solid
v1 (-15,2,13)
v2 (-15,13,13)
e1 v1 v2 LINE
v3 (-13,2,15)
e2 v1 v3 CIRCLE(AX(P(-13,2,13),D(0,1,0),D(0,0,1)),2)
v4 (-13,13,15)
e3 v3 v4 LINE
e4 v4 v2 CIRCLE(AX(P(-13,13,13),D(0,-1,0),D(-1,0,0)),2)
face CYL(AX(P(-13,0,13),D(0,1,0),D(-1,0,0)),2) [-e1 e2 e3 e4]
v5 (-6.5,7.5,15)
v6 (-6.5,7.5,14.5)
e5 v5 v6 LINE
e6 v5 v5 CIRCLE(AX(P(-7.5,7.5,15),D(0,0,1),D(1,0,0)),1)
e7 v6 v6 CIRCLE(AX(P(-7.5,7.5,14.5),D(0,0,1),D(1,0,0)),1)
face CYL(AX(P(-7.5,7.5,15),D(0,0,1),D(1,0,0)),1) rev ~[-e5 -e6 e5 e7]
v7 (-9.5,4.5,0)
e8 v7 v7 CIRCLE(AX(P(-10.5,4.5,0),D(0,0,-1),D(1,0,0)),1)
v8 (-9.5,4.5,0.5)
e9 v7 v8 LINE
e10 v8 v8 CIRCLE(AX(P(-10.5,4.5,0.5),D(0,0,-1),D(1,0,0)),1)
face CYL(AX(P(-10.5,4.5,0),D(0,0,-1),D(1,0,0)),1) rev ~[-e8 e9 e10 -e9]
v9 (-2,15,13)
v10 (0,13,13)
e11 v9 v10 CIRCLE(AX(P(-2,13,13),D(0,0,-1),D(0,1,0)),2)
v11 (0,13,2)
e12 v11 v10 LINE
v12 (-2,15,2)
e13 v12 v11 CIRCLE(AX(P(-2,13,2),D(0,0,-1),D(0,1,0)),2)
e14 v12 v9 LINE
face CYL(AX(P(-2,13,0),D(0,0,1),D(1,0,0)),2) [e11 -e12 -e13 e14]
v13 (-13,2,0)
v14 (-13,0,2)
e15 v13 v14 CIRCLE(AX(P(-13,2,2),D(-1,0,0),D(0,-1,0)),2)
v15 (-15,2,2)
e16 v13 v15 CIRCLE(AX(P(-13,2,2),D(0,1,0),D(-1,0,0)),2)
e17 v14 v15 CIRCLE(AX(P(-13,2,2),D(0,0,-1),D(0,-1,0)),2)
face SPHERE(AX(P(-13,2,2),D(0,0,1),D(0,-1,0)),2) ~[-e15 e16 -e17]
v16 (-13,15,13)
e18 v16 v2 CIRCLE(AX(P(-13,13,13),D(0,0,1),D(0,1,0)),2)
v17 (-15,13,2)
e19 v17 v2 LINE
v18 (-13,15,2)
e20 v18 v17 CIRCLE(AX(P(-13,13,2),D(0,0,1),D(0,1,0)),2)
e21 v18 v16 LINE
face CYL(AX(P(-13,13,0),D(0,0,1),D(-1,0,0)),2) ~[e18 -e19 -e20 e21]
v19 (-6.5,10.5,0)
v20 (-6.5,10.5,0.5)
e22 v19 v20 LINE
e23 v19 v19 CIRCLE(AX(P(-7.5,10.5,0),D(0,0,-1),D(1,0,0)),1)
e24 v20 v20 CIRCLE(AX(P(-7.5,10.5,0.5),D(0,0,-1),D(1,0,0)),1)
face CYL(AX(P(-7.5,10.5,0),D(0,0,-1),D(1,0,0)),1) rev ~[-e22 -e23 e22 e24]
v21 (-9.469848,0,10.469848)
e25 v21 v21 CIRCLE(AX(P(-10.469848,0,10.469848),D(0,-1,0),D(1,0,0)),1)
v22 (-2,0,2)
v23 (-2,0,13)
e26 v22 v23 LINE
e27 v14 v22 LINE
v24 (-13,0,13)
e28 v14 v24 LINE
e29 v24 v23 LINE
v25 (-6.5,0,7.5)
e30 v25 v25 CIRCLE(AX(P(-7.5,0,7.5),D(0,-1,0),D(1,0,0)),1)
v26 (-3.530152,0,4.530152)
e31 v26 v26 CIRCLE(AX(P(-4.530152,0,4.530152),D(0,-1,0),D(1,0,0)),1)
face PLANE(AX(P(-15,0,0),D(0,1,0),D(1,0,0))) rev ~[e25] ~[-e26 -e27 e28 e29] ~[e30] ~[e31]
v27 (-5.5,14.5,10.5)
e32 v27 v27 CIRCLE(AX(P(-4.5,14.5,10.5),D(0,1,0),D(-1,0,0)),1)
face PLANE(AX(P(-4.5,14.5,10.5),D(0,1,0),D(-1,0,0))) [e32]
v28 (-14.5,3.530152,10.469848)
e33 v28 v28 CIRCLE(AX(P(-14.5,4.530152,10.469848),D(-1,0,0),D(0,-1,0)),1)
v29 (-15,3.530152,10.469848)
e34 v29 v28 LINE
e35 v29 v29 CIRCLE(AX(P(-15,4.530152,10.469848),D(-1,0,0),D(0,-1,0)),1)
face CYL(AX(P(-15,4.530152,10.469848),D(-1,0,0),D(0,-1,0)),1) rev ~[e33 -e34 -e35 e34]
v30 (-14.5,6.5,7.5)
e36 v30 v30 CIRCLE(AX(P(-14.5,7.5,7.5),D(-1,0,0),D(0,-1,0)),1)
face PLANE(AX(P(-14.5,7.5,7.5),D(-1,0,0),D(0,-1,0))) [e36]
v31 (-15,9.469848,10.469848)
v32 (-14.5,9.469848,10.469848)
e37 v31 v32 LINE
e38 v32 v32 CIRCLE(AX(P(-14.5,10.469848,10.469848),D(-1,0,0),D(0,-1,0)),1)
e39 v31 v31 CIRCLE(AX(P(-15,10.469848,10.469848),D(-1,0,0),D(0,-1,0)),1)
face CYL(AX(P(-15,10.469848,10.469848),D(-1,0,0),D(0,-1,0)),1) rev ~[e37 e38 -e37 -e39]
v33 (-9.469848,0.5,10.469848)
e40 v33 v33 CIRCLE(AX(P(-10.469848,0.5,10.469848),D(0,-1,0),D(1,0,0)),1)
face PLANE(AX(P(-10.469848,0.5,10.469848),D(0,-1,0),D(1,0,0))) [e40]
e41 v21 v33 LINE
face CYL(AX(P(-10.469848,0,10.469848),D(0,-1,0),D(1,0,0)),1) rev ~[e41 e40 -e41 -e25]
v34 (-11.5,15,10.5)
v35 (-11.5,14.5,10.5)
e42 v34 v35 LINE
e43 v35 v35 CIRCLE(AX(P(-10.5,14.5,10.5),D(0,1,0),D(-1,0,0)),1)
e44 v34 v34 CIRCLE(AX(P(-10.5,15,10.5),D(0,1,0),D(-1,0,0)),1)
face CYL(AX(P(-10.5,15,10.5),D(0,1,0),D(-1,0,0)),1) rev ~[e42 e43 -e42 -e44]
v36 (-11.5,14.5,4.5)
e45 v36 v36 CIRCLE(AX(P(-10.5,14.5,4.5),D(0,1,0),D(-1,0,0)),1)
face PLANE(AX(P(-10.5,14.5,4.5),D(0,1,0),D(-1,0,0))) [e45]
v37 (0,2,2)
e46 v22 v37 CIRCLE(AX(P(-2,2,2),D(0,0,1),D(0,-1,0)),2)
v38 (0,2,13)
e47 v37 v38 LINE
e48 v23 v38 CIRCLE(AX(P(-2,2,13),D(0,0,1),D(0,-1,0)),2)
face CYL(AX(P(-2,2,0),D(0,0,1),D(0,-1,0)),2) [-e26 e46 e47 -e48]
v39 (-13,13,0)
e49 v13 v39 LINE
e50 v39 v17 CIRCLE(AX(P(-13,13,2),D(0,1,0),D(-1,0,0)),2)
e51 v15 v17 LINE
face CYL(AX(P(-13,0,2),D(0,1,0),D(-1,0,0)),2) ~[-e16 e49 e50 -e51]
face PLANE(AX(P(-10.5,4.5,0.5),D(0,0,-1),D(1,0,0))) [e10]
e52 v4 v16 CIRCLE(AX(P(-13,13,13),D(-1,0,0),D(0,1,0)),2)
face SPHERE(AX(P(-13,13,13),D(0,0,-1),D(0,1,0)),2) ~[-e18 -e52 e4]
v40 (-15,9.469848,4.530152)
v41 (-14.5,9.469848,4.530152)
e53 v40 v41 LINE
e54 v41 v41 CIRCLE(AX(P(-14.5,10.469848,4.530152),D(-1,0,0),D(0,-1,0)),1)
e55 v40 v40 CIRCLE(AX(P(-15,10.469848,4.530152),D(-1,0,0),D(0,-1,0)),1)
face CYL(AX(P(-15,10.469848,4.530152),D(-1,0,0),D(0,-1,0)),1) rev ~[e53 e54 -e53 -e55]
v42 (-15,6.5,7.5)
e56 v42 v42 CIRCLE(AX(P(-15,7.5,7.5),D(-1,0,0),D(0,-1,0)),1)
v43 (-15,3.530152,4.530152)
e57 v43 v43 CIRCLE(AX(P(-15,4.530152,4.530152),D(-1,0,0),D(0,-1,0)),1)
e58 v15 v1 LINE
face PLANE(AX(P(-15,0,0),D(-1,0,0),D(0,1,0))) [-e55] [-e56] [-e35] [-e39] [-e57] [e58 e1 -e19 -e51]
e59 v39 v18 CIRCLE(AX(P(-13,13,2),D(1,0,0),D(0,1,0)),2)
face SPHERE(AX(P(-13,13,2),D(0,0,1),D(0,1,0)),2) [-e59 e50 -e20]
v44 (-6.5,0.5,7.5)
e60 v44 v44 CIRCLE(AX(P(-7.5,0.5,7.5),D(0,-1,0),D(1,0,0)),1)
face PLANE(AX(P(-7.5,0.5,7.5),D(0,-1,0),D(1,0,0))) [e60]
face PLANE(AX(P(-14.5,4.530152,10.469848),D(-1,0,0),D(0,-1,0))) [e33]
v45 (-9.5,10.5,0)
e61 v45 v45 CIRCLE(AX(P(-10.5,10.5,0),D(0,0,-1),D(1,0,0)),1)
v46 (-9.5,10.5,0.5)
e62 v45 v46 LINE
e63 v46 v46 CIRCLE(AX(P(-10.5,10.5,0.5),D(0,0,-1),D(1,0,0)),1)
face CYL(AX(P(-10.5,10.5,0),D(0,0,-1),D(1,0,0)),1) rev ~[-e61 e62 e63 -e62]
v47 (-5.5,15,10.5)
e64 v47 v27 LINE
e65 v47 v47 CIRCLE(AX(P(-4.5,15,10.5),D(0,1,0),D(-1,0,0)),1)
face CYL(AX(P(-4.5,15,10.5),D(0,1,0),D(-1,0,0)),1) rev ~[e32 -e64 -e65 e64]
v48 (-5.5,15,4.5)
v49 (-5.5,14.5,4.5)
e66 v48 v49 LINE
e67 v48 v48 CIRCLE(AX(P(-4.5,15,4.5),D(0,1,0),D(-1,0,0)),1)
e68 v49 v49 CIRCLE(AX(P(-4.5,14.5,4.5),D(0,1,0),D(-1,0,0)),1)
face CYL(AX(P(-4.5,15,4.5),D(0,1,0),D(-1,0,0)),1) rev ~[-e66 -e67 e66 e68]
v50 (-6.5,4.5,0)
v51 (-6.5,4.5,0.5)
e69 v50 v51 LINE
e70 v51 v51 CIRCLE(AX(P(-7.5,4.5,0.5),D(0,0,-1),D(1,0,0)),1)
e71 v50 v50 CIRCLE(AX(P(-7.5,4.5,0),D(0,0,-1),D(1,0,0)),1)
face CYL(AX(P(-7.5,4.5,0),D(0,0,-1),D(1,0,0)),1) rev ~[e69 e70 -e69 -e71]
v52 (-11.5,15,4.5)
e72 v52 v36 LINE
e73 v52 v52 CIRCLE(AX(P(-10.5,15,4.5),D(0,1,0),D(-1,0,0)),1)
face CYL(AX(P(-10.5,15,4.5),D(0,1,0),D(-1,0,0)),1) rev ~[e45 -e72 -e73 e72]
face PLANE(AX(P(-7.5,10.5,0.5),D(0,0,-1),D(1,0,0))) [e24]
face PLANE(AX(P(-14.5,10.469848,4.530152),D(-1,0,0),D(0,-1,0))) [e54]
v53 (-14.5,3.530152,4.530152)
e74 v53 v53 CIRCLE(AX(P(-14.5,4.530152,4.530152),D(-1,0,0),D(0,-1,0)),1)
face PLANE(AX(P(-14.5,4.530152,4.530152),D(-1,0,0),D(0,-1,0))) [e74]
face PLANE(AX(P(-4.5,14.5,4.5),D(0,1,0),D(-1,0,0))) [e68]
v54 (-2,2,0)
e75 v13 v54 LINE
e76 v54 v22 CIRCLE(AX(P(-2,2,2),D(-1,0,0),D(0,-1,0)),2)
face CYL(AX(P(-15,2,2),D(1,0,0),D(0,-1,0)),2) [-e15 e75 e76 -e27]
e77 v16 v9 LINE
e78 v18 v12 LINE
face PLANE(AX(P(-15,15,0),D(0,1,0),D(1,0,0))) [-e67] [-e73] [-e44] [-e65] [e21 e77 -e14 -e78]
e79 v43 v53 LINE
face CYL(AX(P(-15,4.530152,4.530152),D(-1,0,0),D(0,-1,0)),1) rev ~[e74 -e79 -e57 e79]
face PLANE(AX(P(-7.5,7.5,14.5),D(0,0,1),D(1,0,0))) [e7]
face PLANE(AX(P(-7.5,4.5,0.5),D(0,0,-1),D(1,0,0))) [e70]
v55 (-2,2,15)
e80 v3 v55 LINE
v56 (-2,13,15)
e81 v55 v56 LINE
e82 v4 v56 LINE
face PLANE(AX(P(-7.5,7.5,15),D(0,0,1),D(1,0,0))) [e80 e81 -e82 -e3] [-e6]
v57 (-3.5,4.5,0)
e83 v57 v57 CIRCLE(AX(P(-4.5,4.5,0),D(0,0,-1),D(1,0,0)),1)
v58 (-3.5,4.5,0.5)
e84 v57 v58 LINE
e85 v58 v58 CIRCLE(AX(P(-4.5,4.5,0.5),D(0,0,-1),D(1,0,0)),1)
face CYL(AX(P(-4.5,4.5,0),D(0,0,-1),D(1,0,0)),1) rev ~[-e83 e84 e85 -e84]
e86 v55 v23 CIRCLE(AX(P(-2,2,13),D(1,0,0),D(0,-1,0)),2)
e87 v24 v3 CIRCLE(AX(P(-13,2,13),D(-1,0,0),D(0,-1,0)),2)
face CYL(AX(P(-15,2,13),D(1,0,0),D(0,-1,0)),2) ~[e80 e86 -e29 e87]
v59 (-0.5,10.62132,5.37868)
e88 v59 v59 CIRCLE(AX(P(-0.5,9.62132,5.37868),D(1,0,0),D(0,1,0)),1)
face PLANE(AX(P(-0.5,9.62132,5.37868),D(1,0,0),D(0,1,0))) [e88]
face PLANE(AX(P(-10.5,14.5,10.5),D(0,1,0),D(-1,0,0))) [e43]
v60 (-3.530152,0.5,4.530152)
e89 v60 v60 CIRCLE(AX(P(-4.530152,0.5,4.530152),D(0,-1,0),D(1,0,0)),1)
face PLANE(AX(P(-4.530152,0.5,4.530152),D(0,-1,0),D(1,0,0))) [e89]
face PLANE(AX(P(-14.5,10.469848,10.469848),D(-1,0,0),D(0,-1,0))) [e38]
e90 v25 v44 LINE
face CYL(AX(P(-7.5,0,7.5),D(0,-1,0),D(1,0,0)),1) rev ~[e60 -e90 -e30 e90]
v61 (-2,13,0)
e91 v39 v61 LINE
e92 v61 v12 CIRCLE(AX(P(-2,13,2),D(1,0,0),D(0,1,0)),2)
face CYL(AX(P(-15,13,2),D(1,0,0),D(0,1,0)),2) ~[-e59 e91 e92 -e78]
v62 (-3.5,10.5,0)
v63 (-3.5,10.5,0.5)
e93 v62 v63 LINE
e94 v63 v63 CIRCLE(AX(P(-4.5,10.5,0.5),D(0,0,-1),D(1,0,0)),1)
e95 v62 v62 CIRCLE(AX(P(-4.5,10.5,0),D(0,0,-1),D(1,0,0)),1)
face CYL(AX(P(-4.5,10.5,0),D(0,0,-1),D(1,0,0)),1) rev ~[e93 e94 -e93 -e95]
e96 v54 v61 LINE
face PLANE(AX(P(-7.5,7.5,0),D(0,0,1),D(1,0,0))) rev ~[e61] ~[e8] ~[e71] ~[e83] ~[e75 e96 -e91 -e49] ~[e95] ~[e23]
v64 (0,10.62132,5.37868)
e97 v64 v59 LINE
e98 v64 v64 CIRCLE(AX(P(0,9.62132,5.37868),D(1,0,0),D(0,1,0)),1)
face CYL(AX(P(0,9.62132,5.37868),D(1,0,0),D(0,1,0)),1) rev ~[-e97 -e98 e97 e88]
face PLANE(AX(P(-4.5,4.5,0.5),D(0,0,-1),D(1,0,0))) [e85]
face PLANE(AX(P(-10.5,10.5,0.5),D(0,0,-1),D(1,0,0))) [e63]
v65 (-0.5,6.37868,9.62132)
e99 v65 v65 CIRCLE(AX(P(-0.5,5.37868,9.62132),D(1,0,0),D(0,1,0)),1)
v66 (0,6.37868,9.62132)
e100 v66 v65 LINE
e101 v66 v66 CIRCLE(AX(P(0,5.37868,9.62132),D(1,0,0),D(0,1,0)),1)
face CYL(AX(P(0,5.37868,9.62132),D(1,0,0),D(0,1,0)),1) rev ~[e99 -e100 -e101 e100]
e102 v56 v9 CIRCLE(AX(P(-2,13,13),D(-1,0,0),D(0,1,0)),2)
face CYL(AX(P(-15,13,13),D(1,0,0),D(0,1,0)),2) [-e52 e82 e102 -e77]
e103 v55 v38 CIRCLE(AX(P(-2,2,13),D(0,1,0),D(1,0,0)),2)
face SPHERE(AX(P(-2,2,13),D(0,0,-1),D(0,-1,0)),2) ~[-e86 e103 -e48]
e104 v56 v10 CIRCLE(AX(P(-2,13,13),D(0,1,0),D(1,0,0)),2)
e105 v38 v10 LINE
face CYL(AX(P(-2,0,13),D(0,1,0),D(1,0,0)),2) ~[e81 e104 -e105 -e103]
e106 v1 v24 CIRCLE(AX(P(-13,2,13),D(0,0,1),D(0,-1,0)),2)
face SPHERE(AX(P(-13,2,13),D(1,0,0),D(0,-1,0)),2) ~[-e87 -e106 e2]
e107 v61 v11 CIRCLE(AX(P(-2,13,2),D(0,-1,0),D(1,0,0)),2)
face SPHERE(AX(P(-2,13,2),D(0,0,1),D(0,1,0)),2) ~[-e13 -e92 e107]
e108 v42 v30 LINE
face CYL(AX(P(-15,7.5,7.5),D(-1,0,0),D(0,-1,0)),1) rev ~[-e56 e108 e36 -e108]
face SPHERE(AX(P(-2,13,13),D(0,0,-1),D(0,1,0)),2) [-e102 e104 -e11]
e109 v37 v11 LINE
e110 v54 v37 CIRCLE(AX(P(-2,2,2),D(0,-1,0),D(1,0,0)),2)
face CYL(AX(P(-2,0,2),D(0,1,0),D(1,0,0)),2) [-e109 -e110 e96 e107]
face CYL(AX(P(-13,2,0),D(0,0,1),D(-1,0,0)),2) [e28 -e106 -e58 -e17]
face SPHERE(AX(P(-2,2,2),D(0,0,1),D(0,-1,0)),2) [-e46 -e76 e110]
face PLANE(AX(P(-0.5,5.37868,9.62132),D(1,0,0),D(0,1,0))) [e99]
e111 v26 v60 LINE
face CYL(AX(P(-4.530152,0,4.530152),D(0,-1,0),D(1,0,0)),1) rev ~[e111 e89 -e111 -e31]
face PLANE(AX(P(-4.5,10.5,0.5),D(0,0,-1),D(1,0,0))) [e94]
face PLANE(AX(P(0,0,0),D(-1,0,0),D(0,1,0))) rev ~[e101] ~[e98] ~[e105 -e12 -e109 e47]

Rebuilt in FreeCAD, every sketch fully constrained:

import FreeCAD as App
import Part
import Sketcher

V = App.Vector


def add_polygon(sketch, points):
    """Adds a closed chain of lines whose ends are joined by coincident constraints."""
    first, n = sketch.GeometryCount, len(points)
    for a, b in zip(points, points[1:] + points[:1]):
        sketch.addGeometry(Part.LineSegment(App.Vector(*a, 0), App.Vector(*b, 0)), False)
    for i in range(n):
        sketch.addConstraint(Sketcher.Constraint("Coincident", first + i, 2, first + (i + 1) % n, 1))

doc = App.newDocument("Part")
body = doc.addObject("PartDesign::Body", "Body")

# Sketch on XY plane
sketch1 = body.newObject("Sketcher::SketchObject", "Sketch")
sketch1.AttachmentSupport = (doc.getObject("XY_Plane"), [""])
sketch1.MapMode = "FlatFace"
add_polygon(sketch1, [(-15, 15), (-15, 0), (0, 0), (0, 15)])  # lines 0-3
sketch1.addConstraint([
    Sketcher.Constraint("Vertical", 0),
    Sketcher.Constraint("Horizontal", 1),
    Sketcher.Constraint("Vertical", 2),
    Sketcher.Constraint("Horizontal", 3),
    Sketcher.Constraint("Coincident", 1, 2, -1, 1),
    Sketcher.Constraint("Equal", 3, 0),
    Sketcher.Constraint("DistanceX", 1, 1, 1, 2, 15.0),
])
pad1 = body.newObject("PartDesign::Pad", "Pad")
pad1.Profile = sketch1
pad1.Length = 15
doc.recompute()

fillet = body.newObject("PartDesign::Fillet", "Fillet")
fillet.Base = (pad1, ["Edge1"])
fillet.UseAllEdges = True
fillet.Radius = 2

# Sketch on XY plane
sketch2 = body.newObject("Sketcher::SketchObject", "Sketch001")
sketch2.AttachmentSupport = (doc.getObject("XY_Plane"), [""])
sketch2.MapMode = "FlatFace"
sketch2.AttachmentOffset = App.Placement(V(0, 0, 15), App.Rotation())
sketch2.addGeometry(Part.Circle(V(-7.5, 7.5, 0), V(0, 0, 1), 1), False)
sketch2.addConstraint([
    Sketcher.Constraint("Diameter", 0, 2.0),
    Sketcher.Constraint("DistanceX", 0, 3, -1, 1, 7.5),
    Sketcher.Constraint("DistanceY", -1, 1, 0, 3, 7.5),
])
pocket1 = body.newObject("PartDesign::Pocket", "Pocket")
pocket1.Profile = sketch2
pocket1.Length = 0.5

# Sketch on XY plane
sketch3 = body.newObject("Sketcher::SketchObject", "Sketch002")
sketch3.AttachmentSupport = (doc.getObject("XY_Plane"), [""])
sketch3.MapMode = "FlatFace"
sketch3.addGeometry([
    Part.Circle(V(-4.5, 10.5, 0), V(0, 0, 1), 1),  # 0
    Part.Circle(V(-7.5, 10.5, 0), V(0, 0, 1), 1),  # 1
    Part.Circle(V(-10.5, 10.5, 0), V(0, 0, 1), 1),  # 2
    Part.Circle(V(-10.5, 4.5, 0), V(0, 0, 1), 1),  # 3
    Part.Circle(V(-7.5, 4.5, 0), V(0, 0, 1), 1),  # 4
    Part.Circle(V(-4.5, 4.5, 0), V(0, 0, 1), 1),  # 5
], False)
sketch3.addConstraint([
    Sketcher.Constraint("Equal", 0, 1),
    Sketcher.Constraint("Equal", 1, 2),
    Sketcher.Constraint("Equal", 2, 3),
    Sketcher.Constraint("Equal", 3, 4),
    Sketcher.Constraint("Equal", 4, 5),
    Sketcher.Constraint("Horizontal", 0, 3, 1, 3),
    Sketcher.Constraint("Horizontal", 1, 3, 2, 3),
    Sketcher.Constraint("Horizontal", 3, 3, 4, 3),
    Sketcher.Constraint("Horizontal", 4, 3, 5, 3),
    Sketcher.Constraint("Vertical", 2, 3, 3, 3),
    Sketcher.Constraint("Vertical", 1, 3, 4, 3),
    Sketcher.Constraint("Vertical", 0, 3, 5, 3),
    Sketcher.Constraint("Diameter", 0, 2.0),
    Sketcher.Constraint("DistanceX", 1, 3, 0, 3, 3.0),
    Sketcher.Constraint("DistanceX", 2, 3, 1, 3, 3.0),
    Sketcher.Constraint("DistanceY", 3, 3, 2, 3, 6.0),
    Sketcher.Constraint("DistanceX", 0, 3, -1, 1, 4.5),
    Sketcher.Constraint("DistanceY", -1, 1, 0, 3, 10.5),
])
pocket2 = body.newObject("PartDesign::Pocket", "Pocket001")
pocket2.Profile = sketch3
pocket2.Length = 0.5
pocket2.Reversed = True

# Sketch on XZ plane
sketch4 = body.newObject("Sketcher::SketchObject", "Sketch003")
sketch4.AttachmentSupport = (doc.getObject("XZ_Plane"), [""])
sketch4.MapMode = "FlatFace"
sketch4.AttachmentOffset = App.Placement(V(0, 0, -15), App.Rotation())
sketch4.addGeometry([
    Part.Circle(V(-10.5, 10.5, 0), V(0, 0, 1), 1),
    Part.Circle(V(-4.5, 10.5, 0), V(0, 0, 1), 1),
    Part.Circle(V(-4.5, 4.5, 0), V(0, 0, 1), 1),
    Part.Circle(V(-10.5, 4.5, 0), V(0, 0, 1), 1),
], False)
sketch4.addConstraint([
    Sketcher.Constraint("Equal", 0, 1),
    Sketcher.Constraint("Equal", 1, 2),
    Sketcher.Constraint("Equal", 2, 3),
    Sketcher.Constraint("Horizontal", 0, 3, 1, 3),
    Sketcher.Constraint("Horizontal", 2, 3, 3, 3),
    Sketcher.Constraint("Vertical", 1, 3, 2, 3),
    Sketcher.Constraint("Vertical", 0, 3, 3, 3),
    Sketcher.Constraint("Diameter", 0, 2.0),
    Sketcher.Constraint("DistanceX", 0, 3, 1, 3, 6.0),
    Sketcher.Constraint("DistanceY", 2, 3, 1, 3, 6.0),
    Sketcher.Constraint("DistanceX", 0, 3, -1, 1, 10.5),
    Sketcher.Constraint("DistanceY", -1, 1, 0, 3, 10.5),
])
pocket3 = body.newObject("PartDesign::Pocket", "Pocket002")
pocket3.Profile = sketch4
pocket3.Length = 0.5
pocket3.Reversed = True

# Sketch on XZ plane
sketch5 = body.newObject("Sketcher::SketchObject", "Sketch004")
sketch5.AttachmentSupport = (doc.getObject("XZ_Plane"), [""])
sketch5.MapMode = "FlatFace"
sketch5.addGeometry([
    Part.Circle(V(-10.5, 10.5, 0), V(0, 0, 1), 1),
    Part.Circle(V(-7.5, 7.5, 0), V(0, 0, 1), 1),
    Part.Circle(V(-4.5, 4.5, 0), V(0, 0, 1), 1),
], False)
sketch5.addConstraint([
    Sketcher.Constraint("Equal", 0, 1),
    Sketcher.Constraint("Equal", 1, 2),
    Sketcher.Constraint("Diameter", 0, 2.0),
    Sketcher.Constraint("DistanceX", 1, 3, -1, 1, 7.5),
    Sketcher.Constraint("DistanceY", -1, 1, 1, 3, 7.5),
    Sketcher.Constraint("DistanceX", 0, 3, -1, 1, 10.469848),
    Sketcher.Constraint("DistanceY", -1, 1, 0, 3, 10.469848),
    Sketcher.Constraint("DistanceX", 2, 3, -1, 1, 4.530152),
    Sketcher.Constraint("DistanceY", -1, 1, 2, 3, 4.530152),
])
pocket4 = body.newObject("PartDesign::Pocket", "Pocket003")
pocket4.Profile = sketch5
pocket4.Length = 0.5

# Sketch on YZ plane
sketch6 = body.newObject("Sketcher::SketchObject", "Sketch005")
sketch6.AttachmentSupport = (doc.getObject("YZ_Plane"), [""])
sketch6.MapMode = "FlatFace"
sketch6.addGeometry([
    Part.Circle(V(5.4, 9.6, 0), V(0, 0, 1), 1),
    Part.Circle(V(9.6, 5.4, 0), V(0, 0, 1), 1),
], False)
sketch6.addConstraint([
    Sketcher.Constraint("Equal", 0, 1),
    Sketcher.Constraint("Diameter", 0, 2.0),
    Sketcher.Constraint("DistanceX", -1, 1, 0, 3, 5.37868),
    Sketcher.Constraint("DistanceY", -1, 1, 0, 3, 9.62132),
    Sketcher.Constraint("DistanceX", -1, 1, 1, 3, 9.62132),
    Sketcher.Constraint("DistanceY", -1, 1, 1, 3, 5.37868),
])
pocket5 = body.newObject("PartDesign::Pocket", "Pocket004")
pocket5.Profile = sketch6
pocket5.Length = 0.5

# Sketch on YZ plane
sketch7 = body.newObject("Sketcher::SketchObject", "Sketch006")
sketch7.AttachmentSupport = (doc.getObject("YZ_Plane"), [""])
sketch7.MapMode = "FlatFace"
sketch7.AttachmentOffset = App.Placement(V(0, 0, -15), App.Rotation())
sketch7.addGeometry([
    Part.Circle(V(10.5, 10.5, 0), V(0, 0, 1), 1),  # 0
    Part.Circle(V(4.5, 10.5, 0), V(0, 0, 1), 1),  # 1
    Part.Circle(V(7.5, 7.5, 0), V(0, 0, 1), 1),  # 2
    Part.Circle(V(10.5, 4.5, 0), V(0, 0, 1), 1),  # 3
    Part.Circle(V(4.5, 4.5, 0), V(0, 0, 1), 1),  # 4
], False)
sketch7.addConstraint([
    Sketcher.Constraint("Equal", 0, 1),
    Sketcher.Constraint("Equal", 1, 2),
    Sketcher.Constraint("Equal", 2, 3),
    Sketcher.Constraint("Equal", 3, 4),
    Sketcher.Constraint("Horizontal", 0, 3, 1, 3),
    Sketcher.Constraint("Horizontal", 3, 3, 4, 3),
    Sketcher.Constraint("Vertical", 0, 3, 3, 3),
    Sketcher.Constraint("Vertical", 1, 3, 4, 3),
    Sketcher.Constraint("Diameter", 0, 2.0),
    Sketcher.Constraint("DistanceX", -1, 1, 2, 3, 7.5),
    Sketcher.Constraint("DistanceY", -1, 1, 2, 3, 7.5),
    Sketcher.Constraint("DistanceX", -1, 1, 0, 3, 10.469848),
    Sketcher.Constraint("DistanceY", -1, 1, 0, 3, 10.469848),
    Sketcher.Constraint("DistanceX", -1, 1, 1, 3, 4.530152),
    Sketcher.Constraint("DistanceY", -1, 1, 3, 3, 4.530152),
])
pocket6 = body.newObject("PartDesign::Pocket", "Pocket005")
pocket6.Profile = sketch7
pocket6.Length = 0.5
pocket6.Reversed = True

doc.recompute()
